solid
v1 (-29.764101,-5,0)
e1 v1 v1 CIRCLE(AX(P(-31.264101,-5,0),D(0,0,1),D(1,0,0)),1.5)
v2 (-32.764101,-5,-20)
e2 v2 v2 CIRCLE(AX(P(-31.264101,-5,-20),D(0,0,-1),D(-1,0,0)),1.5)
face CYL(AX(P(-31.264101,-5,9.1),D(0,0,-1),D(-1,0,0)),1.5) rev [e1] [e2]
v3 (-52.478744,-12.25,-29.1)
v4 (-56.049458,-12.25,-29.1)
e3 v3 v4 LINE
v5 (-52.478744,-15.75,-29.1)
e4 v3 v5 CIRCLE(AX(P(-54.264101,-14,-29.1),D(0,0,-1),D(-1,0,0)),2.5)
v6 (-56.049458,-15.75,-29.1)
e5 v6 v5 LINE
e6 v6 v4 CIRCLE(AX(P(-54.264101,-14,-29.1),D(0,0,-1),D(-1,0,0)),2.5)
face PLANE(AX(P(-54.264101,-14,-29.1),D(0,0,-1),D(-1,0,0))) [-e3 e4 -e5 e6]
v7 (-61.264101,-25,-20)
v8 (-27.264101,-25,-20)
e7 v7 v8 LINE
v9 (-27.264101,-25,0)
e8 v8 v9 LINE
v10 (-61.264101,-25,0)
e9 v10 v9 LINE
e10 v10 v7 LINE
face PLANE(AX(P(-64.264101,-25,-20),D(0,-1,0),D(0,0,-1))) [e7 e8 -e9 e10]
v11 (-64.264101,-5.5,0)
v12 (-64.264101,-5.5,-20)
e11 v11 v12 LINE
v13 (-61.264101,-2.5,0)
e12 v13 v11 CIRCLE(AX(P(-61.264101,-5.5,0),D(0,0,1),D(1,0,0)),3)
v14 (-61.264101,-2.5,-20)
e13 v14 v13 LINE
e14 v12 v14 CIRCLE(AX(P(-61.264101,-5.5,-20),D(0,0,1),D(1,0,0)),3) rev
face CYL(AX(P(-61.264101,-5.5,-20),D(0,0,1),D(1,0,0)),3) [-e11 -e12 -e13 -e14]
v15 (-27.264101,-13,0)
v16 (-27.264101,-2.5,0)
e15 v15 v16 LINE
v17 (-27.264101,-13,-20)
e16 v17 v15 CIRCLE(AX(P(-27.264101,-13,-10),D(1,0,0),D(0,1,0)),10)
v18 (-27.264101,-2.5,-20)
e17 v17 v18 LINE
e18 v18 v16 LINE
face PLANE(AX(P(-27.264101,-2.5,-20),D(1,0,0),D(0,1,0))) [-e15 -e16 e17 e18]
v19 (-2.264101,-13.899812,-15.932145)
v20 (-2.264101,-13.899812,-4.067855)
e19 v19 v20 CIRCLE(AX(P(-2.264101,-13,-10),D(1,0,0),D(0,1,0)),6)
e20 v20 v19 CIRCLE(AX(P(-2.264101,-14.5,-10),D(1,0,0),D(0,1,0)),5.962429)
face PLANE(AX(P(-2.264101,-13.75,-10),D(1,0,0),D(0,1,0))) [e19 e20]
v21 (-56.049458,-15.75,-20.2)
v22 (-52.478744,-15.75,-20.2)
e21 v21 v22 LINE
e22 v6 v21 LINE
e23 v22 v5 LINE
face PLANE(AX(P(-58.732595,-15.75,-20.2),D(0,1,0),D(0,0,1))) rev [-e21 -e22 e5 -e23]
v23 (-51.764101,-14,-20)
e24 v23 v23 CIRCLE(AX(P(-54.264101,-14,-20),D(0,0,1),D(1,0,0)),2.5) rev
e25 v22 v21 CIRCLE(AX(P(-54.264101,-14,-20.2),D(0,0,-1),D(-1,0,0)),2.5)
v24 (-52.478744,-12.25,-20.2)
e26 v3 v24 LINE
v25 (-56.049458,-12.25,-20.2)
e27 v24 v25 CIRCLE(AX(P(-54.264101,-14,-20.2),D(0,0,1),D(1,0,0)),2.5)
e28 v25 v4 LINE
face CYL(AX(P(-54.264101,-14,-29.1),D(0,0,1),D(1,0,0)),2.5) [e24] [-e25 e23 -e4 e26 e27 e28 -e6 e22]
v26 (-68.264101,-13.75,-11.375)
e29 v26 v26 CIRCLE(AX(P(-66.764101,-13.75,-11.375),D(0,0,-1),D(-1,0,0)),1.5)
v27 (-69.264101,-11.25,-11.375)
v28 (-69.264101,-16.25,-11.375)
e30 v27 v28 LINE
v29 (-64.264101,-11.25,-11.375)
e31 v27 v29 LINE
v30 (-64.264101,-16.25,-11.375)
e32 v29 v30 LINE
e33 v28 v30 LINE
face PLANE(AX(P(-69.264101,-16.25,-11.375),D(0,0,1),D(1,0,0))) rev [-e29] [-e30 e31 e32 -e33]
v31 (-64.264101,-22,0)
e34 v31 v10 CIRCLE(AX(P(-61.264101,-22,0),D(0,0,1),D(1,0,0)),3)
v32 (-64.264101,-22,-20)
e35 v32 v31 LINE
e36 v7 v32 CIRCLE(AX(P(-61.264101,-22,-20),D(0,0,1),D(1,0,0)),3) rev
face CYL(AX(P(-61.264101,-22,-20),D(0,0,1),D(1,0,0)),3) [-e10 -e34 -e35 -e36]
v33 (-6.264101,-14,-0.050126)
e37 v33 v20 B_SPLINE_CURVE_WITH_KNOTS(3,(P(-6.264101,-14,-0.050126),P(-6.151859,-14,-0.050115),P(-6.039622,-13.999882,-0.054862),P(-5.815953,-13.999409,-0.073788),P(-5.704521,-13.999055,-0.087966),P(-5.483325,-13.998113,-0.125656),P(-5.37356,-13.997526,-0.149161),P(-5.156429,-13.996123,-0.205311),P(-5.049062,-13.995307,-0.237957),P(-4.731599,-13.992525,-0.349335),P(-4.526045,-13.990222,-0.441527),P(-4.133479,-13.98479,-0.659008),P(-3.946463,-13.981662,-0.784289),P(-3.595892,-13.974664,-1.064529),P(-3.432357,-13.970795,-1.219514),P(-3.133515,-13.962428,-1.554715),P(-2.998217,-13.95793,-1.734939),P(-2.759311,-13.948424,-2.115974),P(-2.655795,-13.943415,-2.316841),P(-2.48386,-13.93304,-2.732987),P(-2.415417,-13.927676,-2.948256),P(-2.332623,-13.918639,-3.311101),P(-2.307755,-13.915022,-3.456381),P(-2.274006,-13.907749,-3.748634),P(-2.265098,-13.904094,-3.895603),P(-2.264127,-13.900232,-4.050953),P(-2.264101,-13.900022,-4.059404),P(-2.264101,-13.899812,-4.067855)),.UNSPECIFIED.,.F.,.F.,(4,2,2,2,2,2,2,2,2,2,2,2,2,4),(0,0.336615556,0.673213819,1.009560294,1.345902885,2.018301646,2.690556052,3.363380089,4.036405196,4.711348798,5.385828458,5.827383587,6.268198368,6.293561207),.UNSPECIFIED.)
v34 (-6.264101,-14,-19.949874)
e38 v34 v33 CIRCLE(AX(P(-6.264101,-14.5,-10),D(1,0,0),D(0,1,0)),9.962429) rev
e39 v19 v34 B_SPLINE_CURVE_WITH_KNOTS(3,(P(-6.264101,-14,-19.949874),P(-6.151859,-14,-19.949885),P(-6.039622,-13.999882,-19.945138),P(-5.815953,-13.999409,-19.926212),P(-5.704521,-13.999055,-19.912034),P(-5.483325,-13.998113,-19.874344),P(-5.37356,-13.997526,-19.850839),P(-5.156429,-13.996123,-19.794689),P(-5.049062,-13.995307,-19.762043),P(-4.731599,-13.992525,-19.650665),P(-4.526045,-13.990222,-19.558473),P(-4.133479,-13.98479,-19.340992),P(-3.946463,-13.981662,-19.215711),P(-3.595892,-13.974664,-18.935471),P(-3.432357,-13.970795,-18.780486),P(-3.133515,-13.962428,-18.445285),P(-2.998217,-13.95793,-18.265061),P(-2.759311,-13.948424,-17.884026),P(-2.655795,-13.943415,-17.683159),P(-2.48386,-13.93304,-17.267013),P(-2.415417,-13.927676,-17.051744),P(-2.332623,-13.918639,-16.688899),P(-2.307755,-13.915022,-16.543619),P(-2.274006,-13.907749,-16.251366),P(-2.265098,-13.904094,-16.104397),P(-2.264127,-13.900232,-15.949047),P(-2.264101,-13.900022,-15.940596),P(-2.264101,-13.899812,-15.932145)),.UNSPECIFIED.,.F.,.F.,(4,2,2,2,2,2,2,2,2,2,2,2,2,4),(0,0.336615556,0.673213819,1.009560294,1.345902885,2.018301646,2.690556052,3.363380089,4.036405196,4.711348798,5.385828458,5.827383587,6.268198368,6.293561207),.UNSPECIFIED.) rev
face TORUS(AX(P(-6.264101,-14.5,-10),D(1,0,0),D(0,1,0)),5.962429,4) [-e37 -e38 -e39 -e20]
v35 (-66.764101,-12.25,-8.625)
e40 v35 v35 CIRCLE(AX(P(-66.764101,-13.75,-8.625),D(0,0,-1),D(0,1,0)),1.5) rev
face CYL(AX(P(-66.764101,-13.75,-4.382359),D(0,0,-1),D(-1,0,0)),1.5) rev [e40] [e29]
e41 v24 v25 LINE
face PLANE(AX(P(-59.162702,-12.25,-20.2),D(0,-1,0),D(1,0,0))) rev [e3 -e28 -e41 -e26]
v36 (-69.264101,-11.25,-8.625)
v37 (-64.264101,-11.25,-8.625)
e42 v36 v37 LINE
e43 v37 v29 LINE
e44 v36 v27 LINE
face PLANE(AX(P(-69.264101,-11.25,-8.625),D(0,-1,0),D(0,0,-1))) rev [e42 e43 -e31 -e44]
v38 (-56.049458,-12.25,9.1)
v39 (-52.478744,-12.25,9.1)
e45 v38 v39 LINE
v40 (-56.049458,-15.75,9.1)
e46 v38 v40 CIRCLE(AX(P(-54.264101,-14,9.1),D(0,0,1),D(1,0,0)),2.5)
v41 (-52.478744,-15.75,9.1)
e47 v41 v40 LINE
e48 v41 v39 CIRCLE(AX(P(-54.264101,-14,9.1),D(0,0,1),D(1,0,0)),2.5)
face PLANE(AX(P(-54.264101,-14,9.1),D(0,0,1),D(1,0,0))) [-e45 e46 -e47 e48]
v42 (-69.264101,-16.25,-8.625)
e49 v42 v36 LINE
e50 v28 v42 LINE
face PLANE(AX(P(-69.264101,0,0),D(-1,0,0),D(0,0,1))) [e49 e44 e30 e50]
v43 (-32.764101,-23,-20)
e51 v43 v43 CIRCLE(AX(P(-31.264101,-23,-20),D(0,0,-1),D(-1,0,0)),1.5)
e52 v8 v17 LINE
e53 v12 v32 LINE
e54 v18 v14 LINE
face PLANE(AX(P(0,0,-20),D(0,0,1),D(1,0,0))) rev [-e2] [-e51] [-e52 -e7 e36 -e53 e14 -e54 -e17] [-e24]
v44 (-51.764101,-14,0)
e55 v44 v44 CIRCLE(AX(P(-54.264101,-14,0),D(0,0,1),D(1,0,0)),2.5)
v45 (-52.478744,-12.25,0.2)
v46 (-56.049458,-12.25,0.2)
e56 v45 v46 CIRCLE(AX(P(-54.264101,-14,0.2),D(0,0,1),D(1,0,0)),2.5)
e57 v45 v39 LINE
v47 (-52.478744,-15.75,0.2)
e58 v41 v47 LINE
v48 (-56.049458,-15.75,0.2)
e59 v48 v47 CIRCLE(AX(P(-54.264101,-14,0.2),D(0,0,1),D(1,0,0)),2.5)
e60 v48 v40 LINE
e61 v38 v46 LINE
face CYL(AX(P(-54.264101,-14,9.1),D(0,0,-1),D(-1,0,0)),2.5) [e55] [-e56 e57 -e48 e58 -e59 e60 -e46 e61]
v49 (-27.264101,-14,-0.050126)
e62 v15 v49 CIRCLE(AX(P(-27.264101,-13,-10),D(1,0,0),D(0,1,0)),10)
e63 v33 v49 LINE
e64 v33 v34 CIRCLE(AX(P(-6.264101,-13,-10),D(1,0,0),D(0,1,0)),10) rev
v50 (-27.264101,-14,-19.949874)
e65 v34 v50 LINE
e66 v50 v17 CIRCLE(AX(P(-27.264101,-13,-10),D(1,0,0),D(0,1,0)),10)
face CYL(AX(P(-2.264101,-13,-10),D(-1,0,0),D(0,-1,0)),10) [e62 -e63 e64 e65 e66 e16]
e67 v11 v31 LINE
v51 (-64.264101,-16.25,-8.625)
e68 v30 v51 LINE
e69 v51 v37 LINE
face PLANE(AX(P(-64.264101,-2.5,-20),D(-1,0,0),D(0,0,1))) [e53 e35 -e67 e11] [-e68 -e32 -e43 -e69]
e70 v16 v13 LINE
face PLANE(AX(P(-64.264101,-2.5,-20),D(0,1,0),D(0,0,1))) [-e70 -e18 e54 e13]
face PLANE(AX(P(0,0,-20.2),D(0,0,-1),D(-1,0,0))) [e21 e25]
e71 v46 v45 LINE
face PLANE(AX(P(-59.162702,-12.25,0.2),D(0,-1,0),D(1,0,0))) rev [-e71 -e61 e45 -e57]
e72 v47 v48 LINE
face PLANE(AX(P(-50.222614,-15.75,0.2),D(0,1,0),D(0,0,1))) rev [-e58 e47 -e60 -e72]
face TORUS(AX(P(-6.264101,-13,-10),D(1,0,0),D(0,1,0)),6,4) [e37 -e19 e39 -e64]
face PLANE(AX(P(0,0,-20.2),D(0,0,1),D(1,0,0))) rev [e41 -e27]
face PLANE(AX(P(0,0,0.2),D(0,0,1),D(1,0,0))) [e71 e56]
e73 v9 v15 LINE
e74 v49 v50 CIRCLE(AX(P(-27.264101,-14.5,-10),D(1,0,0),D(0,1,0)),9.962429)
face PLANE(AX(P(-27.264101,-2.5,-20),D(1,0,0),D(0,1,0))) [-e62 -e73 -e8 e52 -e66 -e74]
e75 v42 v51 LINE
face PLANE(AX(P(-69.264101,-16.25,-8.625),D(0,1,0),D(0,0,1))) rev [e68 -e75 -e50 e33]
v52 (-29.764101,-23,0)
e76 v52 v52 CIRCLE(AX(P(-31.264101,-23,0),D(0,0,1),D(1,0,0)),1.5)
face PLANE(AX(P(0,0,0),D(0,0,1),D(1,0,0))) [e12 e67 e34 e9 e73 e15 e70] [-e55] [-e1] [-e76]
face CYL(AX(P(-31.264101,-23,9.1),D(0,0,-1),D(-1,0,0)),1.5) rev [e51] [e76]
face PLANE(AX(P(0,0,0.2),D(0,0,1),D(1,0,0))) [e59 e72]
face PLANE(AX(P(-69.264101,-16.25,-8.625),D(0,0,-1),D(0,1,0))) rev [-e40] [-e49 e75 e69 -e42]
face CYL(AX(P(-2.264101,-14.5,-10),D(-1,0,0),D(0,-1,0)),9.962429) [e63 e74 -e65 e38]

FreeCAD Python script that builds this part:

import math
import FreeCAD as App
import Part
import Sketcher
from FreeCAD import Vector
Q = App.Units.Quantity


def edges_at(feature, points):
    """Names of the edges that pass closest to the given points."""
    edges = feature.Shape.Edges
    near = lambda p: min(range(len(edges)), key=lambda i: edges[i].distToShape(Part.Vertex(*p))[0])
    return sorted({f"Edge{near(p) + 1}" for p in points})


def add_polygon(sketch, points):
    """Adds a closed chain of lines whose ends are joined by coincident constraints."""
    first, n = sketch.GeometryCount, len(points)
    for a, b in zip(points, points[1:] + points[:1]):
        sketch.addGeometry(Part.LineSegment(App.Vector(*a, 0), App.Vector(*b, 0)), False)
    for i in range(n):
        sketch.addConstraint(Sketcher.Constraint("Coincident", first + i, 2, first + (i + 1) % n, 1))

doc = App.newDocument("Part")
params = doc.addObject("Spreadsheet::Sheet", "Params")
for row, (alias, value) in enumerate([
    ("sketch1_width", "37 mm"),
    ("sketch1_height", "22.5 mm"),
    ("pad1_length", "20 mm"),
    ("sketch2_radius", "10 mm"),
    ("pad2_length", "25 mm"),
    ("sketch3_diameter", "5 mm"),
    ("pad3_length", "9.1 mm"),
    ("sketch4_diameter", "5 mm"),
    ("pad4_length", "9.1 mm"),
    ("fillet_radius", "3 mm"),
    ("fillet2_radius", "4 mm"),
    ("sketch5_width", "5 mm"),
    ("sketch5_height", "2.75 mm"),
    ("pad5_length", "5 mm"),
    ("sketch6_diameter", "3 mm"),
    ("pocket1_length", "2.75 mm"),
    ("sketch7_diameter", "3 mm"),
    ("pocket3_length", "8.9 mm"),
    ("pocket4_length", "8.9 mm"),
], start=1):
    params.set(f"A{row}", alias)
    params.set(f"B{row}", "=" + value)
    params.setAlias(f"B{row}", alias)

body = doc.addObject("PartDesign::Body", "Body")

# Sketch on XY plane
sketch1 = doc.addObject("Sketcher::SketchObject", "Sketch")
body.addObject(sketch1)
sketch1.AttachmentSupport = (doc.XY_Plane, [""])
sketch1.MapMode = "FlatFace"
add_polygon(sketch1, [(-64, -2), (-64, -25), (-27, -25), (-27, -2)])  # lines 0-3
sketch1.addConstraint(Sketcher.Constraint("Vertical", 0))
sketch1.addConstraint(Sketcher.Constraint("Horizontal", 1))
sketch1.addConstraint(Sketcher.Constraint("Vertical", 2))
sketch1.addConstraint(Sketcher.Constraint("Horizontal", 3))
sketch1.addConstraint(Sketcher.Constraint("DistanceX", 1, 1, 1, 2, Q("37 mm")))
sketch1.addConstraint(Sketcher.Constraint("DistanceY", 0, 2, 0, 1, Q("22.5 mm")))
sketch1.addConstraint(Sketcher.Constraint("DistanceY", 0, 2, -1, 1, Q("25 mm")))
sketch1.addConstraint(Sketcher.Constraint("DistanceX", 0, 2, -1, 1, Q("64.264101 mm")))
sketch1.setExpression("Constraints[8]", "Params.sketch1_width")
sketch1.setExpression("Constraints[9]", "Params.sketch1_height")
pad1 = doc.addObject("PartDesign::Pad", "Pad")
body.addObject(pad1)
pad1.Profile = sketch1
pad1.setExpression("Length", "Params.pad1_length")
pad1.Reversed = True

# Sketch on YZ plane
sketch2 = doc.addObject("Sketcher::SketchObject", "Sketch001")
body.addObject(sketch2)
sketch2.AttachmentSupport = (doc.YZ_Plane, [""])
sketch2.MapMode = "FlatFace"
sketch2.AttachmentOffset = App.Placement(Vector(0, 0, -27.264101), App.Rotation())
sketch2.addGeometry(Part.ArcOfCircle(Part.Circle(Vector(-14, -10, 0), Vector(0, 0, 1), 10), math.radians(87), math.radians(273)), False)
sketch2.addGeometry(Part.ArcOfCircle(Part.Circle(Vector(-13, -10, 0), Vector(0, 0, 1), 10), math.radians(-96), math.radians(96)), False)
sketch2.addConstraint(Sketcher.Constraint("Coincident", 0, 1, 1, 2))
sketch2.addConstraint(Sketcher.Constraint("Coincident", 1, 1, 0, 2))
sketch2.addConstraint(Sketcher.Constraint("Horizontal", 0, 3, 1, 3))
sketch2.addConstraint(Sketcher.Constraint("Radius", 1, Q("10 mm")))
sketch2.addConstraint(Sketcher.Constraint("DistanceY", 0, 3, -1, 1, Q("10 mm")))
sketch2.addConstraint(Sketcher.Constraint("DistanceX", 1, 3, -1, 1, Q("13 mm")))
sketch2.addConstraint(Sketcher.Constraint("DistanceX", 0, 1, -1, 1, Q("14 mm")))
sketch2.addConstraint(Sketcher.Constraint("DistanceX", 0, 3, -1, 1, Q("14.5 mm")))
sketch2.setExpression("Constraints[3]", "Params.sketch2_radius")
pad2 = doc.addObject("PartDesign::Pad", "Pad001")
body.addObject(pad2)
pad2.Profile = sketch2
pad2.setExpression("Length", "Params.pad2_length")

# Sketch on XY plane
sketch3 = doc.addObject("Sketcher::SketchObject", "Sketch002")
body.addObject(sketch3)
sketch3.AttachmentSupport = (doc.XY_Plane, [""])
sketch3.MapMode = "FlatFace"
sketch3.addGeometry(Part.Circle(Vector(-54.3, -14, 0), Vector(0, 0, 1), 2.5), False)
sketch3.addConstraint(Sketcher.Constraint("Diameter", 0, Q("5 mm")))
sketch3.addConstraint(Sketcher.Constraint("DistanceY", 0, 3, -1, 1, Q("14 mm")))
sketch3.addConstraint(Sketcher.Constraint("DistanceX", 0, 3, -1, 1, Q("54.264101 mm")))
sketch3.setExpression("Constraints[0]", "Params.sketch3_diameter")
pad3 = doc.addObject("PartDesign::Pad", "Pad002")
body.addObject(pad3)
pad3.Profile = sketch3
pad3.setExpression("Length", "Params.pad3_length")

# Sketch on XY plane
sketch4 = doc.addObject("Sketcher::SketchObject", "Sketch003")
body.addObject(sketch4)
sketch4.AttachmentSupport = (doc.XY_Plane, [""])
sketch4.MapMode = "FlatFace"
sketch4.AttachmentOffset = App.Placement(Vector(0, 0, -20), App.Rotation())
sketch4.addGeometry(Part.Circle(Vector(-54.3, -14, 0), Vector(0, 0, 1), 2.5), False)
sketch4.addConstraint(Sketcher.Constraint("Diameter", 0, Q("5 mm")))
sketch4.addConstraint(Sketcher.Constraint("DistanceY", 0, 3, -1, 1, Q("14 mm")))
sketch4.addConstraint(Sketcher.Constraint("DistanceX", 0, 3, -1, 1, Q("54.264101 mm")))
sketch4.setExpression("Constraints[0]", "Params.sketch4_diameter")
pad4 = doc.addObject("PartDesign::Pad", "Pad003")
body.addObject(pad4)
pad4.Profile = sketch4
pad4.setExpression("Length", "Params.pad4_length")
pad4.Reversed = True
doc.recompute()

fillet = doc.addObject("PartDesign::Fillet", "Fillet")
body.addObject(fillet)
fillet.Base = (pad4, edges_at(pad4, [(-64.264, -2.5, -10), (-64.264, -25, -10)]))
fillet.setExpression("Radius", "Params.fillet_radius")
doc.recompute()

fillet2 = doc.addObject("PartDesign::Fillet", "Fillet001")
body.addObject(fillet2)
fillet2.Base = (fillet, edges_at(fillet, [(-2.264, -3, -10), (-2.264, -24.462, -10)]))
fillet2.setExpression("Radius", "Params.fillet2_radius")

# Sketch on YZ plane
sketch5 = doc.addObject("Sketcher::SketchObject", "Sketch004")
body.addObject(sketch5)
sketch5.AttachmentSupport = (doc.YZ_Plane, [""])
sketch5.MapMode = "FlatFace"
sketch5.AttachmentOffset = App.Placement(Vector(0, 0, -64.264101), App.Rotation())
add_polygon(sketch5, [(-11.2, -11.4), (-16.2, -11.4), (-16.2, -8.6), (-11.2, -8.6)])  # lines 0-3
sketch5.addConstraint(Sketcher.Constraint("Horizontal", 0))
sketch5.addConstraint(Sketcher.Constraint("Vertical", 1))
sketch5.addConstraint(Sketcher.Constraint("Horizontal", 2))
sketch5.addConstraint(Sketcher.Constraint("Vertical", 3))
sketch5.addConstraint(Sketcher.Constraint("DistanceX", 0, 2, 0, 1, Q("5 mm")))
sketch5.addConstraint(Sketcher.Constraint("DistanceY", 1, 1, 1, 2, Q("2.75 mm")))
sketch5.addConstraint(Sketcher.Constraint("DistanceX", 0, 2, -1, 1, Q("16.25 mm")))
sketch5.addConstraint(Sketcher.Constraint("DistanceY", 0, 2, -1, 1, Q("11.375 mm")))
sketch5.setExpression("Constraints[8]", "Params.sketch5_width")
sketch5.setExpression("Constraints[9]", "Params.sketch5_height")
pad5 = doc.addObject("PartDesign::Pad", "Pad004")
body.addObject(pad5)
pad5.Profile = sketch5
pad5.setExpression("Length", "Params.pad5_length")
pad5.Reversed = True

# Sketch on XY plane
sketch6 = doc.addObject("Sketcher::SketchObject", "Sketch005")
body.addObject(sketch6)
sketch6.AttachmentSupport = (doc.XY_Plane, [""])
sketch6.MapMode = "FlatFace"
sketch6.AttachmentOffset = App.Placement(Vector(0, 0, -11.375), App.Rotation())
sketch6.addGeometry(Part.Circle(Vector(-66.8, -13.8, 0), Vector(0, 0, 1), 1.5), False)
sketch6.addConstraint(Sketcher.Constraint("Diameter", 0, Q("3 mm")))
sketch6.addConstraint(Sketcher.Constraint("DistanceY", 0, 3, -1, 1, Q("13.75 mm")))
sketch6.addConstraint(Sketcher.Constraint("DistanceX", 0, 3, -1, 1, Q("66.764101 mm")))
sketch6.setExpression("Constraints[0]", "Params.sketch6_diameter")
pocket1 = doc.addObject("PartDesign::Pocket", "Pocket")
body.addObject(pocket1)
pocket1.Profile = sketch6
pocket1.setExpression("Length", "Params.pocket1_length")
pocket1.Reversed = True

# Sketch on XY plane
sketch7 = doc.addObject("Sketcher::SketchObject", "Sketch006")
body.addObject(sketch7)
sketch7.AttachmentSupport = (doc.XY_Plane, [""])
sketch7.MapMode = "FlatFace"
sketch7.AttachmentOffset = App.Placement(Vector(0, 0, -20), App.Rotation())
sketch7.addGeometry(Part.Circle(Vector(-31.3, -5, 0), Vector(0, 0, 1), 1.5), False)
sketch7.addGeometry(Part.Circle(Vector(-31.3, -23, 0), Vector(0, 0, 1), 1.5), False)
sketch7.addConstraint(Sketcher.Constraint("Equal", 0, 1))
sketch7.addConstraint(Sketcher.Constraint("Vertical", 0, 3, 1, 3))
sketch7.addConstraint(Sketcher.Constraint("Diameter", 0, Q("3 mm")))
sketch7.addConstraint(Sketcher.Constraint("DistanceY", 0, 3, -1, 1, Q("5 mm")))
sketch7.addConstraint(Sketcher.Constraint("DistanceY", 1, 3, -1, 1, Q("23 mm")))
sketch7.addConstraint(Sketcher.Constraint("DistanceX", 0, 3, -1, 1, Q("31.264101 mm")))
sketch7.setExpression("Constraints[2]", "Params.sketch7_diameter")
pocket2 = doc.addObject("PartDesign::Pocket", "Pocket001")
body.addObject(pocket2)
pocket2.Profile = sketch7
pocket2.Type = "ThroughAll"
pocket2.Reversed = True

# Sketch on XY plane
sketch8 = doc.addObject("Sketcher::SketchObject", "Sketch007")
body.addObject(sketch8)
sketch8.AttachmentSupport = (doc.XY_Plane, [""])
sketch8.MapMode = "FlatFace"
sketch8.AttachmentOffset = App.Placement(Vector(0, 0, -29.1), App.Rotation())
add_polygon(sketch8, [(-50.2, -15.8), (-50.2, -18.5), (-58.7, -18.5), (-58.7, -15.8)])  # lines 0-3
add_polygon(sketch8, [(-49.5, -9.8), (-49.5, -12.2), (-59.2, -12.2), (-59.2, -9.8)])  # lines 4-7
sketch8.addConstraint(Sketcher.Constraint("Vertical", 0))
sketch8.addConstraint(Sketcher.Constraint("Horizontal", 1))
sketch8.addConstraint(Sketcher.Constraint("Vertical", 2))
sketch8.addConstraint(Sketcher.Constraint("Horizontal", 3))
sketch8.addConstraint(Sketcher.Constraint("Vertical", 4))
sketch8.addConstraint(Sketcher.Constraint("Horizontal", 5))
sketch8.addConstraint(Sketcher.Constraint("Vertical", 6))
sketch8.addConstraint(Sketcher.Constraint("Horizontal", 7))
sketch8.addConstraint(Sketcher.Constraint("DistanceY", 3, 2, 4, 2, Q("3.5 mm")))
sketch8.addConstraint(Sketcher.Constraint("DistanceY", 2, 2, -1, 1, Q("15.75 mm")))
sketch8.addConstraint(Sketcher.Constraint("DistanceX", 1, 2, 1, 1, Q("8.509981 mm")))
sketch8.addConstraint(Sketcher.Constraint("DistanceX", 5, 2, -1, 1, Q("59.162702 mm")))
sketch8.addConstraint(Sketcher.Constraint("DistanceX", 5, 2, 5, 1, Q("9.677415 mm")))
sketch8.addConstraint(Sketcher.Constraint("DistanceY", 0, 2, 0, 1, Q("2.764976 mm")))
sketch8.addConstraint(Sketcher.Constraint("DistanceY", 4, 2, 4, 1, Q("2.427034 mm")))
sketch8.addConstraint(Sketcher.Constraint("DistanceX", 5, 2, 3, 2, Q("8.940088 mm")))
pocket3 = doc.addObject("PartDesign::Pocket", "Pocket002")
body.addObject(pocket3)
pocket3.Profile = sketch8
pocket3.setExpression("Length", "Params.pocket3_length")
pocket3.Reversed = True

# Sketch on XY plane
sketch9 = doc.addObject("Sketcher::SketchObject", "Sketch008")
body.addObject(sketch9)
sketch9.AttachmentSupport = (doc.XY_Plane, [""])
sketch9.MapMode = "FlatFace"
sketch9.AttachmentOffset = App.Placement(Vector(0, 0, 9.1), App.Rotation())
add_polygon(sketch9, [(-59.2, -9.8), (-59.2, -12.2), (-49.5, -12.2), (-49.5, -9.8)])  # lines 0-3
add_polygon(sketch9, [(-58.7, -15.8), (-58.7, -18.5), (-50.2, -18.5), (-50.2, -15.8)])  # lines 4-7
sketch9.addConstraint(Sketcher.Constraint("Vertical", 0))
sketch9.addConstraint(Sketcher.Constraint("Horizontal", 1))
sketch9.addConstraint(Sketcher.Constraint("Vertical", 2))
sketch9.addConstraint(Sketcher.Constraint("Horizontal", 3))
sketch9.addConstraint(Sketcher.Constraint("Vertical", 4))
sketch9.addConstraint(Sketcher.Constraint("Horizontal", 5))
sketch9.addConstraint(Sketcher.Constraint("Vertical", 6))
sketch9.addConstraint(Sketcher.Constraint("Horizontal", 7))
sketch9.addConstraint(Sketcher.Constraint("DistanceY", 6, 2, 1, 2, Q("3.5 mm")))
sketch9.addConstraint(Sketcher.Constraint("DistanceY", 0, 2, -1, 1, Q("12.25 mm")))
sketch9.addConstraint(Sketcher.Constraint("DistanceX", 5, 1, 5, 2, Q("8.509981 mm")))
sketch9.addConstraint(Sketcher.Constraint("DistanceX", 0, 2, -1, 1, Q("59.162702 mm")))
sketch9.addConstraint(Sketcher.Constraint("DistanceX", 1, 1, 1, 2, Q("9.677415 mm")))
sketch9.addConstraint(Sketcher.Constraint("DistanceY", 0, 2, 0, 1, Q("2.427034 mm")))
sketch9.addConstraint(Sketcher.Constraint("DistanceY", 4, 2, 4, 1, Q("2.764976 mm")))
sketch9.addConstraint(Sketcher.Constraint("DistanceX", 0, 2, 5, 2, Q("8.940088 mm")))
pocket4 = doc.addObject("PartDesign::Pocket", "Pocket003")
body.addObject(pocket4)
pocket4.Profile = sketch9
pocket4.setExpression("Length", "Params.pocket4_length")

doc.recompute()
